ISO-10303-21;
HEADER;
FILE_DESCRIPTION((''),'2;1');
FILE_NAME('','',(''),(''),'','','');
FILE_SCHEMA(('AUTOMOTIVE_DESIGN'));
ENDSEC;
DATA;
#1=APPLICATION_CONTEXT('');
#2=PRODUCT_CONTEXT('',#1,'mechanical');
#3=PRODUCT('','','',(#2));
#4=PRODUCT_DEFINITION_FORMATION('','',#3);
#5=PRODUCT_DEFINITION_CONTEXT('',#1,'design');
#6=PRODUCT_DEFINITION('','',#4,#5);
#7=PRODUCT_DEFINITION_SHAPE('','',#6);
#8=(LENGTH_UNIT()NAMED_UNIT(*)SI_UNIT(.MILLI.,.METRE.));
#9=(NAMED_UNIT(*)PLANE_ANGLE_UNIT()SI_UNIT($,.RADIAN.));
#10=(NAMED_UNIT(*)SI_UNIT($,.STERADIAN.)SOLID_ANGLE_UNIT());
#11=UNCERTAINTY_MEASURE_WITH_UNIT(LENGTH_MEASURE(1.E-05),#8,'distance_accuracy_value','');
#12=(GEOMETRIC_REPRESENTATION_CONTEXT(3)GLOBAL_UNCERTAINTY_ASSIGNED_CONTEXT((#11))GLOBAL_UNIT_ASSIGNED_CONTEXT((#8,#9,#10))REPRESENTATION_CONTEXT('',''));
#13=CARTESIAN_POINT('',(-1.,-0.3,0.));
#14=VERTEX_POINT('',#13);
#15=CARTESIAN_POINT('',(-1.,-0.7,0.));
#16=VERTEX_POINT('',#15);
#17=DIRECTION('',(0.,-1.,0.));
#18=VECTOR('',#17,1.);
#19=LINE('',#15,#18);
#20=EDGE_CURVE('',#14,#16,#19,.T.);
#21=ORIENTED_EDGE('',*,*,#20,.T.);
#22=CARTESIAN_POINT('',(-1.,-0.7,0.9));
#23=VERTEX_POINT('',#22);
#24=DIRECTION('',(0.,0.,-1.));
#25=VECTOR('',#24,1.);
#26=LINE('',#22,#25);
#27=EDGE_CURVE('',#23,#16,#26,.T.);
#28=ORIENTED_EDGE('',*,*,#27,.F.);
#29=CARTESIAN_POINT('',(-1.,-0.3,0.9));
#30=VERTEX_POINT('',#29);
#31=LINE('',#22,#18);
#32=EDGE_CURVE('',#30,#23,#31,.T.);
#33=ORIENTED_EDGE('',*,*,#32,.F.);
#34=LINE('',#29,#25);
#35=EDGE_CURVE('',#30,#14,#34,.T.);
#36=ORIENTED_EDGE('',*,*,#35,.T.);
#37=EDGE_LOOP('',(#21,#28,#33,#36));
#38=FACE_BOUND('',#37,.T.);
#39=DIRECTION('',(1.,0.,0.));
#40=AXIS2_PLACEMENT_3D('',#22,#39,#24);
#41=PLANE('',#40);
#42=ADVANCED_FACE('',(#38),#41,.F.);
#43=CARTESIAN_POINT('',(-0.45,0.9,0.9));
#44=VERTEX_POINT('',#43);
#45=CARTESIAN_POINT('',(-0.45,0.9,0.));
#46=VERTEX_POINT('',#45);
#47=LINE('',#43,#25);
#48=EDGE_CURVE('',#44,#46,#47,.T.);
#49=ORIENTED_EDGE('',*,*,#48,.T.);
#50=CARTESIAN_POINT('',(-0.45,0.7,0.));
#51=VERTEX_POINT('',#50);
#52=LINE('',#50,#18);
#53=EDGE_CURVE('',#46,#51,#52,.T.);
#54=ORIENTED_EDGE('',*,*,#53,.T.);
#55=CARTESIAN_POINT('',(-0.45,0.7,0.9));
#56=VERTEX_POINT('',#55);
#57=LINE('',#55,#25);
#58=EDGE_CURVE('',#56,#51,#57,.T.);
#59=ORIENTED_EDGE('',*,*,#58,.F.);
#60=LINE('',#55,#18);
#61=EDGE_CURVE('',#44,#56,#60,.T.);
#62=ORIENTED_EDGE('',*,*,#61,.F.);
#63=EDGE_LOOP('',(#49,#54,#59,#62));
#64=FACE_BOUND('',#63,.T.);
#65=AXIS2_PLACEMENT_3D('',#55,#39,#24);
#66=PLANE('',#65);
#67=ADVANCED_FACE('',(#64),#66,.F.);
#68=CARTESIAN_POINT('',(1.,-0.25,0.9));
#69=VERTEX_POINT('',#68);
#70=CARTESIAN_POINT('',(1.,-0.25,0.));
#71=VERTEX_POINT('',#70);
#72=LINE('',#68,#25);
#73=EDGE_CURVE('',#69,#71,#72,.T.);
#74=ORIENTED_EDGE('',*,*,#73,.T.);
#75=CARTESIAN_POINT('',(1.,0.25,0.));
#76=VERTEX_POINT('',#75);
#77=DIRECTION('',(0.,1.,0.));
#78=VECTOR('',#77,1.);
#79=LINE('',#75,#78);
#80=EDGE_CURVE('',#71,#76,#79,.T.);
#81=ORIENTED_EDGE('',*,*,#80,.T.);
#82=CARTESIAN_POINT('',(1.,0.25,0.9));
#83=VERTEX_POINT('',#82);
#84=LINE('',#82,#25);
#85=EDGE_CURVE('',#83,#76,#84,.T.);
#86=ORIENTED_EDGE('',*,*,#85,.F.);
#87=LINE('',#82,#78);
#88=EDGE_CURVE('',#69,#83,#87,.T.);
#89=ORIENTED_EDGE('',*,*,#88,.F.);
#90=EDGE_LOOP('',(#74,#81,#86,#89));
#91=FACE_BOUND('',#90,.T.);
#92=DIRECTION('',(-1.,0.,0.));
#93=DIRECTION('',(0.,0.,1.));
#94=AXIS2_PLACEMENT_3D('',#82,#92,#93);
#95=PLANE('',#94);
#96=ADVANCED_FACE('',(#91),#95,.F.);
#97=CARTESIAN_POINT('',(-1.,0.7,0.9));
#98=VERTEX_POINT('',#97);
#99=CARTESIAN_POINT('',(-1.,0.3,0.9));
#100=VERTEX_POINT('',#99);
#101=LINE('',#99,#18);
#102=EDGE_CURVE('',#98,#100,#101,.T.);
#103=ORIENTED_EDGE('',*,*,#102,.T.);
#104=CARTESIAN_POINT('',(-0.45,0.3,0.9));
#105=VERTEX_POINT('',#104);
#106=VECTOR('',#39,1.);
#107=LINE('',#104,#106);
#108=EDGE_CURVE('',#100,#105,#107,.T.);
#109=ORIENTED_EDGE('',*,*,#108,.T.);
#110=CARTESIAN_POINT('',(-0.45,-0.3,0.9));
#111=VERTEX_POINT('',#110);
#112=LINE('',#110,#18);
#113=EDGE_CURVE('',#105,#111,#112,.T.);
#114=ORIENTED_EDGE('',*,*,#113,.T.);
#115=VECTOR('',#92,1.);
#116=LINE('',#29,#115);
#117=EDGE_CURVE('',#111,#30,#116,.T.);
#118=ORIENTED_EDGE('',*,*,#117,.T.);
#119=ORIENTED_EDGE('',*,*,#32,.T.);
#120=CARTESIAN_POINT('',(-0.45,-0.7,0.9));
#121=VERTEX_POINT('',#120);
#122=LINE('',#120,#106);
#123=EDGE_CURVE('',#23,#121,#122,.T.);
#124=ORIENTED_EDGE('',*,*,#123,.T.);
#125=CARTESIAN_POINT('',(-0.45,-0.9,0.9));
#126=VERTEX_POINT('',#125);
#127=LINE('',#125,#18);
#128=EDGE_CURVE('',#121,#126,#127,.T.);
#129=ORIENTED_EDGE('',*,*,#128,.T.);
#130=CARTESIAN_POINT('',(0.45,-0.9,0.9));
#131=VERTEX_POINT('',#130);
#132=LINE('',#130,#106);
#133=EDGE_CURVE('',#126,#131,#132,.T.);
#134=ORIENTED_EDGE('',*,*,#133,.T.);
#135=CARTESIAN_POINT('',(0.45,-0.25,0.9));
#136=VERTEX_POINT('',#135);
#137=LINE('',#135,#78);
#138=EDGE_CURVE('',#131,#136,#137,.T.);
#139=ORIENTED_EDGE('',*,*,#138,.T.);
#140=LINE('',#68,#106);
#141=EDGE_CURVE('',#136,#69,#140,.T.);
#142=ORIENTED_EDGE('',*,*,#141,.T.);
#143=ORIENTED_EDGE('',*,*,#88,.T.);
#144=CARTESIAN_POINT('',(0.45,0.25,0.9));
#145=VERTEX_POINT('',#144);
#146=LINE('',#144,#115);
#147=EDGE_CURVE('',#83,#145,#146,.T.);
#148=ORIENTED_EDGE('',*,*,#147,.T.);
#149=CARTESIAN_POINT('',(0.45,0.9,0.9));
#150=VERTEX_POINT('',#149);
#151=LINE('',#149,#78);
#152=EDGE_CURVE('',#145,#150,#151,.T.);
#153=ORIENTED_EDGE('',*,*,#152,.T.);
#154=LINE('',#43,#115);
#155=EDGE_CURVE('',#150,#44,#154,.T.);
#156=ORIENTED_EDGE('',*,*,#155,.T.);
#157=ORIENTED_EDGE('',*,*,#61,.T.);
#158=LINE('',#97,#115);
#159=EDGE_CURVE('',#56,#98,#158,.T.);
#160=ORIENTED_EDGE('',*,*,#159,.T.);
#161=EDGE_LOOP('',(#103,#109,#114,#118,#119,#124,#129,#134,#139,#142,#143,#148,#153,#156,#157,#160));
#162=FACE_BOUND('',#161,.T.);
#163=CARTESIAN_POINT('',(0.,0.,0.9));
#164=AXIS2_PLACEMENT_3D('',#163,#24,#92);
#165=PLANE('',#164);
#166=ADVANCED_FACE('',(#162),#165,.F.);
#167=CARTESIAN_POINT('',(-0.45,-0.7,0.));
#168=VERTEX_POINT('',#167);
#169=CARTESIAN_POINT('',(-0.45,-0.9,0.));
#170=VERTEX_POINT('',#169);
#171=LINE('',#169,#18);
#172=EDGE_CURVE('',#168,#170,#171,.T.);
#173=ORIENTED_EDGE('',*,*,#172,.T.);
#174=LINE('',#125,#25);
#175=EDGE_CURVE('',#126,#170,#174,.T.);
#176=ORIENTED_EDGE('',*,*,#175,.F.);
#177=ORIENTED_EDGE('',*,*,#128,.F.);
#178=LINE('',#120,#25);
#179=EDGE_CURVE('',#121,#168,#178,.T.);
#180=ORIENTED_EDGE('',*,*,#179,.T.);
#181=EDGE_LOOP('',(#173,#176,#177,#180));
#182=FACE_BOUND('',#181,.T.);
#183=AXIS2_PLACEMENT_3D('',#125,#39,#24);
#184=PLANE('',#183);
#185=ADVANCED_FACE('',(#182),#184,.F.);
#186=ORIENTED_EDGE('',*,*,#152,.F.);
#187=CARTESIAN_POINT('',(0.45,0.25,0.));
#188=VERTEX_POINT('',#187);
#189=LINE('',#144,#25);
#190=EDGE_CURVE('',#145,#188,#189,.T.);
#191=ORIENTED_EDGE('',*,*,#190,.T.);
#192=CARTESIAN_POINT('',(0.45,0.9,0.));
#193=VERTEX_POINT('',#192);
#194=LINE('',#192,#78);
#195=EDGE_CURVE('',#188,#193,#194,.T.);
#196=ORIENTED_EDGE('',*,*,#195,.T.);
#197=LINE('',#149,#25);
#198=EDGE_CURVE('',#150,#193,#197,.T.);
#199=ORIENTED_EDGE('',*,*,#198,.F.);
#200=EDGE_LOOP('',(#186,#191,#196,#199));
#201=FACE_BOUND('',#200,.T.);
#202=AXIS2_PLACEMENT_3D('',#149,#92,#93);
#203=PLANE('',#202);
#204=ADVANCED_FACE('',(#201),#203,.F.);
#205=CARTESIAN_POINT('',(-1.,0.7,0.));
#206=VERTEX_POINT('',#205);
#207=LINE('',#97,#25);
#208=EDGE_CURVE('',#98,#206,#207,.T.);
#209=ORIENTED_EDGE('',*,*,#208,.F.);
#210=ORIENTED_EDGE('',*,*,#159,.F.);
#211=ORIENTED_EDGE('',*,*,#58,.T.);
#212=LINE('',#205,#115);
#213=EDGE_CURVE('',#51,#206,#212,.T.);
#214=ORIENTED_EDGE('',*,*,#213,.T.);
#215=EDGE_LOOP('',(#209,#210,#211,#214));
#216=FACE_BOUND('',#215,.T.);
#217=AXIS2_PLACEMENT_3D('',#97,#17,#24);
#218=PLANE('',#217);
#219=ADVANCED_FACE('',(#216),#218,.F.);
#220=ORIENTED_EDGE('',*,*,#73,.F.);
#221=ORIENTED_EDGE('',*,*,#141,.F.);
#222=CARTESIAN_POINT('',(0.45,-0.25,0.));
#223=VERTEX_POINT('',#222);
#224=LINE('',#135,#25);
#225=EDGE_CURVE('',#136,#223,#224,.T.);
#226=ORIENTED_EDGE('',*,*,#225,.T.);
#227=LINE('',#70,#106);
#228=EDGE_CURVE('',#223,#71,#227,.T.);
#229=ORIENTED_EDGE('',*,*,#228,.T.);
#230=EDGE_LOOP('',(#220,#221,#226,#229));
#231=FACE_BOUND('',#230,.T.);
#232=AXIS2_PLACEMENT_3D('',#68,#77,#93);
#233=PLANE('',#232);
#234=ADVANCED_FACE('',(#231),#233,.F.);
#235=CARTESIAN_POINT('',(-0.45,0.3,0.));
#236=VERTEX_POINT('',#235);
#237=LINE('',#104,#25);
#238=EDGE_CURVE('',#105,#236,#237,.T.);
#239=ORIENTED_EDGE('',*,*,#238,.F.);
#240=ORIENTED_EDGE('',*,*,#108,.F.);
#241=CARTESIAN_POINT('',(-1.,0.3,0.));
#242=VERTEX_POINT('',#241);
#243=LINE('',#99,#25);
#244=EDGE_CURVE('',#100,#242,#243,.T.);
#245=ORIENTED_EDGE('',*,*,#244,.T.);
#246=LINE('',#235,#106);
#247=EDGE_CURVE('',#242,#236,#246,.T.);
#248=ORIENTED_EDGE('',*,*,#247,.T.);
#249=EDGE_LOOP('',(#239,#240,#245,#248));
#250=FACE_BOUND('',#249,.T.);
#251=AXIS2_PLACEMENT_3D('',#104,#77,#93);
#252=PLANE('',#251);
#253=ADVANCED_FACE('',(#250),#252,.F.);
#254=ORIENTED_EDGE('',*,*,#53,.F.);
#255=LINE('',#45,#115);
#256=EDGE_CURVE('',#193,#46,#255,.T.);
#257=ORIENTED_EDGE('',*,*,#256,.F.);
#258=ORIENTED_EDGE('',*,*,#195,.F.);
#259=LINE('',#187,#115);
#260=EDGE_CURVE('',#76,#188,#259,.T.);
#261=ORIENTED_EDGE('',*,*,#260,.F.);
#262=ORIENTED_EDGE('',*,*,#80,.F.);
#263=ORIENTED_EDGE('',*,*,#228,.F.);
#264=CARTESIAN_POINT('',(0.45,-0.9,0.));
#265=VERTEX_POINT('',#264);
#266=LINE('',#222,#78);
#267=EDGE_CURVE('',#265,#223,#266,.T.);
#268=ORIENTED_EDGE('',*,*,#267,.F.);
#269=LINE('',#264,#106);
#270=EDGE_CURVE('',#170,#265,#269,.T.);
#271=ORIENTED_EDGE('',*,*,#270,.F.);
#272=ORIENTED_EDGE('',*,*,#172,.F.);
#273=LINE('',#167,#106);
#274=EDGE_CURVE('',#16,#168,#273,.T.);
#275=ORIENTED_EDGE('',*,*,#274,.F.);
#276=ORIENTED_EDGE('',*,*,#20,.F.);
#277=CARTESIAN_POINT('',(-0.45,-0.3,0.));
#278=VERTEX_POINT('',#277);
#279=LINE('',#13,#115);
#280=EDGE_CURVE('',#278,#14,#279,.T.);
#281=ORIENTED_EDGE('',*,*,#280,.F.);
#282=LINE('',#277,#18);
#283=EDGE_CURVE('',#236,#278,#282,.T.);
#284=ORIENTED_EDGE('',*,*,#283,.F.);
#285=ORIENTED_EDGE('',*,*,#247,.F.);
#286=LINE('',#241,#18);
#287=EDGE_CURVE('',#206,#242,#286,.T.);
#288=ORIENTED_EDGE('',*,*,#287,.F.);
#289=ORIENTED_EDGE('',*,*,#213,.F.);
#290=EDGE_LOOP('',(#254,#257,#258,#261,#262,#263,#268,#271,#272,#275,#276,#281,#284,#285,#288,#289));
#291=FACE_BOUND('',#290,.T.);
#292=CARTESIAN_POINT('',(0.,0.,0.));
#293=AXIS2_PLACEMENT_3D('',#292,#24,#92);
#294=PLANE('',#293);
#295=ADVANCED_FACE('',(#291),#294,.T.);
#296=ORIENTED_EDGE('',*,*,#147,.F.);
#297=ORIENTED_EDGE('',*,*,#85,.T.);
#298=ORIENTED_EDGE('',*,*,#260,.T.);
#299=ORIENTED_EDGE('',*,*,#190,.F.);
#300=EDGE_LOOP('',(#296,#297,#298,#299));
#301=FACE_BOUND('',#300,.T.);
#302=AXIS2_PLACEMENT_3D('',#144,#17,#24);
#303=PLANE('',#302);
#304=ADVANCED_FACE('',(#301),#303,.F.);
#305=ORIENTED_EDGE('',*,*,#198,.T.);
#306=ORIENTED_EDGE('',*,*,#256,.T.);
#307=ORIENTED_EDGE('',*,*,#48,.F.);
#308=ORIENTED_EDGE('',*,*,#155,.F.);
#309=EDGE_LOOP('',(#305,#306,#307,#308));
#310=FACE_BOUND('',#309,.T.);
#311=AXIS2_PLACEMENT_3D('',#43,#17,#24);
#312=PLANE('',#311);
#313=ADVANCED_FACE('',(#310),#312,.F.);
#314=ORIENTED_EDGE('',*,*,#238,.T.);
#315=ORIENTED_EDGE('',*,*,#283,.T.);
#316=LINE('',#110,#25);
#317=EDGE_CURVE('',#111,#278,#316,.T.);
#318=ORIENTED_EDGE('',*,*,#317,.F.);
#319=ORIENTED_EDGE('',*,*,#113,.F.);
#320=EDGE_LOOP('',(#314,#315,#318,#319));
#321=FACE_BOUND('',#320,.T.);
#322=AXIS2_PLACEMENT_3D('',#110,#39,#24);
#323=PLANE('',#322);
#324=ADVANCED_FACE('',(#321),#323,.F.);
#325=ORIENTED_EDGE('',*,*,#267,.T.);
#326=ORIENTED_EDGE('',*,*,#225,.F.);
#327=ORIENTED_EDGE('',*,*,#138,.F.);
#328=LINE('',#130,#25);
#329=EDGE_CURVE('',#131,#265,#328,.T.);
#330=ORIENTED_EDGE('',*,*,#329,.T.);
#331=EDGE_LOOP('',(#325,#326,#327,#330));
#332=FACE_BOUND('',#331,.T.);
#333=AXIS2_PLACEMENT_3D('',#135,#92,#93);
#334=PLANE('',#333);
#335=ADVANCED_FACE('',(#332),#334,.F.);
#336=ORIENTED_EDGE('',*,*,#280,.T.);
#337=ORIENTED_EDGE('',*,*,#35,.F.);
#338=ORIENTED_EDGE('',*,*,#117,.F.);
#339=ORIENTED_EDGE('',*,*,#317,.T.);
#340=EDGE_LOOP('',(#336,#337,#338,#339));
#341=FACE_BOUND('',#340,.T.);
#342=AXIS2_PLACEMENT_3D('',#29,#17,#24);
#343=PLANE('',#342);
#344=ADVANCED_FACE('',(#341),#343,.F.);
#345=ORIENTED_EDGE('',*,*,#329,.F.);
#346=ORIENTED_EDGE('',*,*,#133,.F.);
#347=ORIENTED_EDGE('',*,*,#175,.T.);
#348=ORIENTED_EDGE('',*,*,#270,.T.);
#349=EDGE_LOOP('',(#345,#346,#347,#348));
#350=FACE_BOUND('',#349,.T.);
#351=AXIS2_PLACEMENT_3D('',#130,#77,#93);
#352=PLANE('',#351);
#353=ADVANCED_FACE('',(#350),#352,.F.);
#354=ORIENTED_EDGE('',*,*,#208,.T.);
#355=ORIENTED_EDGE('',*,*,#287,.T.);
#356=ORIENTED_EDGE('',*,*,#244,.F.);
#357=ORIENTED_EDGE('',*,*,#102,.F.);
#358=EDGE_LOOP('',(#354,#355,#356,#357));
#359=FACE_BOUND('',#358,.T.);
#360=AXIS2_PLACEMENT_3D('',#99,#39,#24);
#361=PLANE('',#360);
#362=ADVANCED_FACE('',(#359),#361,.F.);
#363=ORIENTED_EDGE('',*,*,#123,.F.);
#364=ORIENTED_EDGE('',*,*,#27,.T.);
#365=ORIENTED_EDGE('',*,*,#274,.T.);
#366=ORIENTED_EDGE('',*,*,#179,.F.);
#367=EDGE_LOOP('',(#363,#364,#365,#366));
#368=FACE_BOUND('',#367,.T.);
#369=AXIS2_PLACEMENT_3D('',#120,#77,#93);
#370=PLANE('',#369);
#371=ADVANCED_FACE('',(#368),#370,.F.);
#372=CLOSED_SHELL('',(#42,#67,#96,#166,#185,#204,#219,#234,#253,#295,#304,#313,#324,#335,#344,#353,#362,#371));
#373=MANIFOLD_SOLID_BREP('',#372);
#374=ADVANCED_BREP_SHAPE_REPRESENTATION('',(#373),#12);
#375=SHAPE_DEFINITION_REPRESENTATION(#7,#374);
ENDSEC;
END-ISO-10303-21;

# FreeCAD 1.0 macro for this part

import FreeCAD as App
import Part
import Sketcher
Q = App.Units.Quantity

doc = App.newDocument("Part")
body = doc.addObject("PartDesign::Body", "Body")

sketch1 = doc.addObject("Sketcher::SketchObject", "Sketch")
body.addObject(sketch1)
sketch1.AttachmentSupport = (doc.XY_Plane, [""])
sketch1.MapMode = "FlatFace"
sketch1.addGeometry(Part.LineSegment(App.Vector(0.45, -0.25, 0), App.Vector(1, -0.25, 0)), False)
sketch1.addGeometry(Part.LineSegment(App.Vector(1, -0.25, 0), App.Vector(1, 0.25, 0)), False)
sketch1.addGeometry(Part.LineSegment(App.Vector(1, 0.25, 0), App.Vector(0.45, 0.25, 0)), False)
sketch1.addGeometry(Part.LineSegment(App.Vector(0.45, 0.25, 0), App.Vector(0.45, 0.9, 0)), False)
sketch1.addGeometry(Part.LineSegment(App.Vector(0.45, 0.9, 0), App.Vector(-0.45, 0.9, 0)), False)
sketch1.addGeometry(Part.LineSegment(App.Vector(-0.45, 0.9, 0), App.Vector(-0.45, 0.7, 0)), False)
sketch1.addGeometry(Part.LineSegment(App.Vector(-0.45, 0.7, 0), App.Vector(-1, 0.7, 0)), False)
sketch1.addGeometry(Part.LineSegment(App.Vector(-1, 0.7, 0), App.Vector(-1, 0.3, 0)), False)
sketch1.addGeometry(Part.LineSegment(App.Vector(-1, 0.3, 0), App.Vector(-0.45, 0.3, 0)), False)
sketch1.addGeometry(Part.LineSegment(App.Vector(-0.45, 0.3, 0), App.Vector(-0.45, -0.3, 0)), False)
sketch1.addGeometry(Part.LineSegment(App.Vector(-0.45, -0.3, 0), App.Vector(-1, -0.3, 0)), False)
sketch1.addGeometry(Part.LineSegment(App.Vector(-1, -0.3, 0), App.Vector(-1, -0.7, 0)), False)
sketch1.addGeometry(Part.LineSegment(App.Vector(-1, -0.7, 0), App.Vector(-0.45, -0.7, 0)), False)
sketch1.addGeometry(Part.LineSegment(App.Vector(-0.45, -0.7, 0), App.Vector(-0.45, -0.9, 0)), False)
sketch1.addGeometry(Part.LineSegment(App.Vector(-0.45, -0.9, 0), App.Vector(0.45, -0.9, 0)), False)
sketch1.addGeometry(Part.LineSegment(App.Vector(0.45, -0.9, 0), App.Vector(0.45, -0.25, 0)), False)
sketch1.addConstraint(Sketcher.Constraint("Coincident", 0, 2, 1, 1))
sketch1.addConstraint(Sketcher.Constraint("Coincident", 1, 2, 2, 1))
sketch1.addConstraint(Sketcher.Constraint("Coincident", 2, 2, 3, 1))
sketch1.addConstraint(Sketcher.Constraint("Coincident", 3, 2, 4, 1))
sketch1.addConstraint(Sketcher.Constraint("Coincident", 4, 2, 5, 1))
sketch1.addConstraint(Sketcher.Constraint("Coincident", 5, 2, 6, 1))
sketch1.addConstraint(Sketcher.Constraint("Coincident", 6, 2, 7, 1))
sketch1.addConstraint(Sketcher.Constraint("Coincident", 7, 2, 8, 1))
sketch1.addConstraint(Sketcher.Constraint("Coincident", 8, 2, 9, 1))
sketch1.addConstraint(Sketcher.Constraint("Coincident", 9, 2, 10, 1))
sketch1.addConstraint(Sketcher.Constraint("Coincident", 10, 2, 11, 1))
sketch1.addConstraint(Sketcher.Constraint("Coincident", 11, 2, 12, 1))
sketch1.addConstraint(Sketcher.Constraint("Coincident", 12, 2, 13, 1))
sketch1.addConstraint(Sketcher.Constraint("Coincident", 13, 2, 14, 1))
sketch1.addConstraint(Sketcher.Constraint("Coincident", 14, 2, 15, 1))
sketch1.addConstraint(Sketcher.Constraint("Coincident", 15, 2, 0, 1))
sketch1.addConstraint(Sketcher.Constraint("Horizontal", 0))
sketch1.addConstraint(Sketcher.Constraint("Vertical", 1))
sketch1.addConstraint(Sketcher.Constraint("Horizontal", 2))
sketch1.addConstraint(Sketcher.Constraint("Vertical", 3))
sketch1.addConstraint(Sketcher.Constraint("Horizontal", 4))
sketch1.addConstraint(Sketcher.Constraint("Vertical", 5))
sketch1.addConstraint(Sketcher.Constraint("Horizontal", 6))
sketch1.addConstraint(Sketcher.Constraint("Vertical", 7))
sketch1.addConstraint(Sketcher.Constraint("Horizontal", 8))
sketch1.addConstraint(Sketcher.Constraint("Vertical", 9))
sketch1.addConstraint(Sketcher.Constraint("Horizontal", 10))
sketch1.addConstraint(Sketcher.Constraint("Vertical", 11))
sketch1.addConstraint(Sketcher.Constraint("Horizontal", 12))
sketch1.addConstraint(Sketcher.Constraint("Vertical", 13))
sketch1.addConstraint(Sketcher.Constraint("Horizontal", 14))
sketch1.addConstraint(Sketcher.Constraint("Vertical", 15))
sketch1.addConstraint(Sketcher.Constraint("Symmetric", 3, 2, 13, 2, -1, 1))
sketch1.addConstraint(Sketcher.Constraint("Symmetric", 7, 2, 10, 2, -1))
sketch1.addConstraint(Sketcher.Constraint("Symmetric", 5, 2, 12, 2, -1))
sketch1.addConstraint(Sketcher.Constraint("Symmetric", 2, 2, 15, 2, -1))
sketch1.addConstraint(Sketcher.Constraint("Vertical", 5, 2, 8, 2))
sketch1.addConstraint(Sketcher.Constraint("Equal", 2, 6))
sketch1.addConstraint(Sketcher.Constraint("DistanceX", 4, 2, 4, 1, Q("0.9 mm")))
sketch1.addConstraint(Sketcher.Constraint("DistanceY", 1, 1, 1, 2, Q("0.5 mm")))
sketch1.addConstraint(Sketcher.Constraint("DistanceY", 5, 2, 5, 1, Q("0.2 mm")))
sketch1.addConstraint(Sketcher.Constraint("DistanceY", 7, 2, 7, 1, Q("0.4 mm")))
sketch1.addConstraint(Sketcher.Constraint("DistanceY", 9, 2, 9, 1, Q("0.6 mm")))
sketch1.addConstraint(Sketcher.Constraint("DistanceX", -1, 1, 0, 2, Q("1 mm")))
pad1 = doc.addObject("PartDesign::Pad", "Pad")
body.addObject(pad1)
pad1.Profile = sketch1
pad1.Length = 0.9

doc.recompute()
